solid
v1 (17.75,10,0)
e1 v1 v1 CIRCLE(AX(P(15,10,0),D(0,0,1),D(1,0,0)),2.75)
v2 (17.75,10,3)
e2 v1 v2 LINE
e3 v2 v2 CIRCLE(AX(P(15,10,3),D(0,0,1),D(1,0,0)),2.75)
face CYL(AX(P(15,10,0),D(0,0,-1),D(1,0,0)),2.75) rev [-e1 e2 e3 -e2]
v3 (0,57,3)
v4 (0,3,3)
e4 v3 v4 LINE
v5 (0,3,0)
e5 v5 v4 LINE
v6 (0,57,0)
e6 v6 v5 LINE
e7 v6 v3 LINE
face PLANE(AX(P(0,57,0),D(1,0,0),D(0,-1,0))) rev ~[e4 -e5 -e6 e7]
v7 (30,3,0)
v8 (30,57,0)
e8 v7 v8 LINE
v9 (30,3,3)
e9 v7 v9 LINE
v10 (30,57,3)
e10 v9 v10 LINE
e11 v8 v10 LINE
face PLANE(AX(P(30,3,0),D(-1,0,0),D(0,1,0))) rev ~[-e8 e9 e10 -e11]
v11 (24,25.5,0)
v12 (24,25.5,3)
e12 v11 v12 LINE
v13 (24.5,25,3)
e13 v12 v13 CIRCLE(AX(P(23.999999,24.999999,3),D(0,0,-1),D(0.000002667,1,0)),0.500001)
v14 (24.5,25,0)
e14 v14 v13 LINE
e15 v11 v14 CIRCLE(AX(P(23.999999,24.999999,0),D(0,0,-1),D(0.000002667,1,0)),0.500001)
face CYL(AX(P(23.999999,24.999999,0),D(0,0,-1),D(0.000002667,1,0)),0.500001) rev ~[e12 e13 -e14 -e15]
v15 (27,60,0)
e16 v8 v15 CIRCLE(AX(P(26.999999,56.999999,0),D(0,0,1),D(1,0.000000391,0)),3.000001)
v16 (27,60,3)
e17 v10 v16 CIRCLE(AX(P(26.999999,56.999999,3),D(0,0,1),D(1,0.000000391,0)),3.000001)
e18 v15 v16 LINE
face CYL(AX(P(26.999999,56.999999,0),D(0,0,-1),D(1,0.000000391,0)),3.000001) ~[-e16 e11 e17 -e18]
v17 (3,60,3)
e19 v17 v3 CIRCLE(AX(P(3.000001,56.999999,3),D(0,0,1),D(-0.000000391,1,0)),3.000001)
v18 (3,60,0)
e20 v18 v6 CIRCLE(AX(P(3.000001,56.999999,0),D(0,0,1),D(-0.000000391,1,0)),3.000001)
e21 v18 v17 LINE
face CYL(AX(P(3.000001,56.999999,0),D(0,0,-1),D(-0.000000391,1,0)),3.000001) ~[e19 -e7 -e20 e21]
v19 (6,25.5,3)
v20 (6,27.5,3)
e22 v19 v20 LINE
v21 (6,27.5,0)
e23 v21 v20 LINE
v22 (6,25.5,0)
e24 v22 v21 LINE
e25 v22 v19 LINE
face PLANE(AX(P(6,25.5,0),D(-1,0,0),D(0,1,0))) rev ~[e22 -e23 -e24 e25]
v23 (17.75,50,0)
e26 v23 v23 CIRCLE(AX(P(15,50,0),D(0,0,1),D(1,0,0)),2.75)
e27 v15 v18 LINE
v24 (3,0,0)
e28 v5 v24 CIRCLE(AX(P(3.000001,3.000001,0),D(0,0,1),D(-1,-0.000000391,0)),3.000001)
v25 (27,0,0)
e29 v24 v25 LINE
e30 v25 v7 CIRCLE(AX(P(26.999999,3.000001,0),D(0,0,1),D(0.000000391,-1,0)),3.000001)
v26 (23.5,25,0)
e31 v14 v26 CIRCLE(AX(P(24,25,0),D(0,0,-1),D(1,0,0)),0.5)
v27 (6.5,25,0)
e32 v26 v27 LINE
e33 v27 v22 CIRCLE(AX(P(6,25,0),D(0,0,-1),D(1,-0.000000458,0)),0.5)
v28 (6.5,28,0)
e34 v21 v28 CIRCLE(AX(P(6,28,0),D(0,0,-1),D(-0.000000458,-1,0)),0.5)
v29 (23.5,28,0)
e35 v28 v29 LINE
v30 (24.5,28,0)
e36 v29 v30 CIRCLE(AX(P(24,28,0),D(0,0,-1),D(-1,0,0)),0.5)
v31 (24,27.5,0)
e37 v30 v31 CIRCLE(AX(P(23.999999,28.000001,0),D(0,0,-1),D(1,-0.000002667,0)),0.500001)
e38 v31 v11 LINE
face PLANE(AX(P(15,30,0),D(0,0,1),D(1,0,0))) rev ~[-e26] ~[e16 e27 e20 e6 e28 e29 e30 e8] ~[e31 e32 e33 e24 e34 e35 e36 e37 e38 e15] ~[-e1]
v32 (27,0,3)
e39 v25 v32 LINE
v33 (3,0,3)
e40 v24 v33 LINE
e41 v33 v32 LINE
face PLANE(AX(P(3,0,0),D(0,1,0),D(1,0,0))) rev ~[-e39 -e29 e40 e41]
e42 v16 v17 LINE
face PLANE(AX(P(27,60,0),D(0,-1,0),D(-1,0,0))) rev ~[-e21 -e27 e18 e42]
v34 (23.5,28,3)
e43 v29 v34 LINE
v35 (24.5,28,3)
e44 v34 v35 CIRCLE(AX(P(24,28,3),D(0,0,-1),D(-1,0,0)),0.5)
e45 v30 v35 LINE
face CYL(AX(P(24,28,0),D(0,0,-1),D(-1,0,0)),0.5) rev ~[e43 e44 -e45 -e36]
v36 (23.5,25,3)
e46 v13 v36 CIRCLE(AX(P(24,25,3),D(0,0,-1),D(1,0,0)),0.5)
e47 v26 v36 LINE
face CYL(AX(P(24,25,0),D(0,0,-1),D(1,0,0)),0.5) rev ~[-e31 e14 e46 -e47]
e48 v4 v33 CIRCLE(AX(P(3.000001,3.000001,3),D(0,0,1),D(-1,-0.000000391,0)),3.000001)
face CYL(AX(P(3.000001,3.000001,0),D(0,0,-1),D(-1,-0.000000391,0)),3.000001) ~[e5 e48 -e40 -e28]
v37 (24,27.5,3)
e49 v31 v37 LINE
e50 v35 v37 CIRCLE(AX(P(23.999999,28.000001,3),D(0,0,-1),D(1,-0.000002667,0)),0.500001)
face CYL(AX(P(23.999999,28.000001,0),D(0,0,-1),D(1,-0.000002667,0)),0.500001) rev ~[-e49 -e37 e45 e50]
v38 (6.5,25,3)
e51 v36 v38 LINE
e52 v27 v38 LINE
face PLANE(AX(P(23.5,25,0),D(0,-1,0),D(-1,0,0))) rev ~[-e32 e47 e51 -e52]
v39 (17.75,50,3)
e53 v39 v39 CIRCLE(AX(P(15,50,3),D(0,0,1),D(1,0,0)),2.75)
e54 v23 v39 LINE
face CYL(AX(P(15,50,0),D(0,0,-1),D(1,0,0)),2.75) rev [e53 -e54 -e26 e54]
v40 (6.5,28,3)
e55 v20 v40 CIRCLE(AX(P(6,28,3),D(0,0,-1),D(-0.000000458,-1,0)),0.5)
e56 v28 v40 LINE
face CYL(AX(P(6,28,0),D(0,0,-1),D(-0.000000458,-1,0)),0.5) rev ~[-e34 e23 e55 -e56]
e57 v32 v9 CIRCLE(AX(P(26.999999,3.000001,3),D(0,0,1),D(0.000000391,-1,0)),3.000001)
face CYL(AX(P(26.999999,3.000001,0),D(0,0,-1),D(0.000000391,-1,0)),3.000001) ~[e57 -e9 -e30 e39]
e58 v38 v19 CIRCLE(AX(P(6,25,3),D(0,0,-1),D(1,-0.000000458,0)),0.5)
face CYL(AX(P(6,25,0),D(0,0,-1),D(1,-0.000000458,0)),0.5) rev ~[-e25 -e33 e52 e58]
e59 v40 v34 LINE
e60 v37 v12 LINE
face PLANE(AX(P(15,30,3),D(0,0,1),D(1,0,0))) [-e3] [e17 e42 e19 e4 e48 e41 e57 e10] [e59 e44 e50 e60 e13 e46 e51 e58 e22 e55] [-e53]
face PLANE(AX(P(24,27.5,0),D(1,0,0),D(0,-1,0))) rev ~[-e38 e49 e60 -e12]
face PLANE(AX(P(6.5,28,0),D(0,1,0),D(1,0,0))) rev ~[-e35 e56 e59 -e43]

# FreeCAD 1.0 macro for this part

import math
import FreeCAD as App
import Part
import Sketcher

V = App.Vector

doc = App.newDocument("Part")
body = doc.addObject("PartDesign::Body", "Body")

# Sketch on XY plane
sketch1 = body.newObject("Sketcher::SketchObject", "Sketch")
sketch1.AttachmentSupport = (doc.getObject("XY_Plane"), [""])
sketch1.MapMode = "FlatFace"
sketch1.addGeometry([
    Part.ArcOfCircle(Part.Circle(V(3.000001, 3.000001, 0), V(0, 0, 1), 3.000001), math.radians(-179.999978), math.radians(-90.000022)),  # 0
    Part.LineSegment(V(3, 0, 0), V(27, 0, 0)),  # 1
    Part.ArcOfCircle(Part.Circle(V(26.999999, 3.000001, 0), V(0, 0, 1), 3.000001), math.radians(-89.999978), math.radians(-0.000022)),  # 2
    Part.LineSegment(V(30, 3, 0), V(30, 57, 0)),  # 3
    Part.ArcOfCircle(Part.Circle(V(26.999999, 56.999999, 0), V(0, 0, 1), 3.000001), math.radians(0.000022), math.radians(89.999978)),  # 4
    Part.LineSegment(V(27, 60, 0), V(3, 60, 0)),  # 5
    Part.ArcOfCircle(Part.Circle(V(3.000001, 56.999999, 0), V(0, 0, 1), 3.000001), math.radians(90.000022), math.radians(179.999978)),  # 6
    Part.LineSegment(V(0, 57, 0), V(0, 3, 0)),  # 7
    Part.Circle(V(15, 10, 0), V(0, 0, 1), 2.75),  # 8
    Part.LineSegment(V(6, 25.5, 0), V(6, 27.5, 0)),  # 9
    Part.ArcOfCircle(Part.Circle(V(6, 28, 0), V(0, 0, 1), 0.5), math.radians(0.000026), math.radians(269.999974)),  # 10
    Part.LineSegment(V(6.5, 28, 0), V(23.5, 28, 0)),  # 11
    Part.ArcOfCircle(Part.Circle(V(24, 28, 0), V(0, 0, 1), 0.5), math.radians(0), math.radians(180)),  # 12
    Part.ArcOfCircle(Part.Circle(V(23.999999, 28.000001, 0), V(0, 0, 1), 0.500001), math.radians(-89.999847), math.radians(-0.000153)),  # 13
    Part.LineSegment(V(24, 27.5, 0), V(24, 25.5, 0)),  # 14
    Part.ArcOfCircle(Part.Circle(V(23.999999, 24.999999, 0), V(0, 0, 1), 0.500001), math.radians(0.000153), math.radians(89.999847)),  # 15
    Part.ArcOfCircle(Part.Circle(V(24, 25, 0), V(0, 0, 1), 0.5), math.radians(180), math.radians(360)),  # 16
    Part.LineSegment(V(23.5, 25, 0), V(6.5, 25, 0)),  # 17
    Part.ArcOfCircle(Part.Circle(V(6, 25, 0), V(0, 0, 1), 0.5), math.radians(90.000026), math.radians(359.999974)),  # 18
    Part.Circle(V(15, 50, 0), V(0, 0, 1), 2.75),  # 19
], False)
sketch1.addConstraint([
    Sketcher.Constraint("Tangent", 0, 2, 1, 1),
    Sketcher.Constraint("Tangent", 1, 2, 2, 1),
    Sketcher.Constraint("Tangent", 2, 2, 3, 1),
    Sketcher.Constraint("Tangent", 3, 2, 4, 1),
    Sketcher.Constraint("Tangent", 4, 2, 5, 1),
    Sketcher.Constraint("Tangent", 5, 2, 6, 1),
    Sketcher.Constraint("Tangent", 6, 2, 7, 1),
    Sketcher.Constraint("Tangent", 7, 2, 0, 1),
    Sketcher.Constraint("Coincident", 9, 2, 10, 2),
    Sketcher.Constraint("Coincident", 10, 1, 11, 1),
    Sketcher.Constraint("Coincident", 11, 2, 12, 2),
    Sketcher.Constraint("Coincident", 12, 1, 13, 2),
    Sketcher.Constraint("Coincident", 13, 1, 14, 1),
    Sketcher.Constraint("Coincident", 14, 2, 15, 2),
    Sketcher.Constraint("Coincident", 15, 1, 16, 2),
    Sketcher.Constraint("Coincident", 16, 1, 17, 1),
    Sketcher.Constraint("Coincident", 17, 2, 18, 2),
    Sketcher.Constraint("Coincident", 18, 1, 9, 1),
    Sketcher.Constraint("Horizontal", 1),
    Sketcher.Constraint("Vertical", 3),
    Sketcher.Constraint("Horizontal", 5),
    Sketcher.Constraint("Vertical", 7),
    Sketcher.Constraint("Vertical", 9),
    Sketcher.Constraint("Horizontal", 11),
    Sketcher.Constraint("Vertical", 14),
    Sketcher.Constraint("Horizontal", 17),
    Sketcher.Constraint("Coincident", 13, 3, 12, 3),
    Sketcher.Constraint("Coincident", 16, 3, 15, 3),
    Sketcher.Constraint("Equal", 0, 2),
    Sketcher.Constraint("Equal", 2, 4),
    Sketcher.Constraint("Equal", 4, 6),
    Sketcher.Constraint("Equal", 10, 12),
    Sketcher.Constraint("Equal", 13, 15),
    Sketcher.Constraint("Equal", 16, 18),
    Sketcher.Constraint("Equal", 8, 19),
    Sketcher.Constraint("PointOnObject", 0, 2, -1),
    Sketcher.Constraint("PointOnObject", 6, 2, -2),
    Sketcher.Constraint("Horizontal", 10, 3, 12, 3),
    Sketcher.Constraint("Horizontal", 16, 3, 18, 3),
    Sketcher.Constraint("Horizontal", 13, 3, 10, 1),
    Sketcher.Constraint("Horizontal", 11, 2, 12, 1),
    Sketcher.Constraint("Horizontal", 18, 3, 15, 1),
    Sketcher.Constraint("Horizontal", 15, 1, 16, 1),
    Sketcher.Constraint("Vertical", 13, 3, 15, 3),
    Sketcher.Constraint("Vertical", 10, 3, 18, 3),
    Sketcher.Constraint("Vertical", 8, 3, 19, 3),
    Sketcher.Constraint("Vertical", 18, 3, 9, 2),
    Sketcher.Constraint("Vertical", 16, 3, 13, 1),
    Sketcher.Constraint("Radius", 0, 3.000001),
    Sketcher.Constraint("Diameter", 8, 5.5),
    Sketcher.Constraint("Radius", 10, 0.5),
    Sketcher.Constraint("DistanceX", 1, 1, 1, 2, 24.0),
    Sketcher.Constraint("DistanceX", 11, 1, 11, 2, 17.0),
    Sketcher.Constraint("DistanceY", 3, 1, 3, 2, 54.0),
    Sketcher.Constraint("DistanceY", 9, 1, 9, 2, 2.0),
    Sketcher.Constraint("DistanceX", -1, 1, 8, 3, 15.0),
    Sketcher.Constraint("DistanceY", -1, 1, 8, 3, 10.0),
    Sketcher.Constraint("DistanceX", -1, 1, 10, 3, 6.0),
    Sketcher.Constraint("DistanceY", -1, 1, 10, 3, 28.0),
    Sketcher.Constraint("DistanceY", -1, 1, 19, 3, 50.0),
])
pad1 = body.newObject("PartDesign::Pad", "Pad")
pad1.Profile = sketch1
pad1.Length = 3

doc.recompute()
